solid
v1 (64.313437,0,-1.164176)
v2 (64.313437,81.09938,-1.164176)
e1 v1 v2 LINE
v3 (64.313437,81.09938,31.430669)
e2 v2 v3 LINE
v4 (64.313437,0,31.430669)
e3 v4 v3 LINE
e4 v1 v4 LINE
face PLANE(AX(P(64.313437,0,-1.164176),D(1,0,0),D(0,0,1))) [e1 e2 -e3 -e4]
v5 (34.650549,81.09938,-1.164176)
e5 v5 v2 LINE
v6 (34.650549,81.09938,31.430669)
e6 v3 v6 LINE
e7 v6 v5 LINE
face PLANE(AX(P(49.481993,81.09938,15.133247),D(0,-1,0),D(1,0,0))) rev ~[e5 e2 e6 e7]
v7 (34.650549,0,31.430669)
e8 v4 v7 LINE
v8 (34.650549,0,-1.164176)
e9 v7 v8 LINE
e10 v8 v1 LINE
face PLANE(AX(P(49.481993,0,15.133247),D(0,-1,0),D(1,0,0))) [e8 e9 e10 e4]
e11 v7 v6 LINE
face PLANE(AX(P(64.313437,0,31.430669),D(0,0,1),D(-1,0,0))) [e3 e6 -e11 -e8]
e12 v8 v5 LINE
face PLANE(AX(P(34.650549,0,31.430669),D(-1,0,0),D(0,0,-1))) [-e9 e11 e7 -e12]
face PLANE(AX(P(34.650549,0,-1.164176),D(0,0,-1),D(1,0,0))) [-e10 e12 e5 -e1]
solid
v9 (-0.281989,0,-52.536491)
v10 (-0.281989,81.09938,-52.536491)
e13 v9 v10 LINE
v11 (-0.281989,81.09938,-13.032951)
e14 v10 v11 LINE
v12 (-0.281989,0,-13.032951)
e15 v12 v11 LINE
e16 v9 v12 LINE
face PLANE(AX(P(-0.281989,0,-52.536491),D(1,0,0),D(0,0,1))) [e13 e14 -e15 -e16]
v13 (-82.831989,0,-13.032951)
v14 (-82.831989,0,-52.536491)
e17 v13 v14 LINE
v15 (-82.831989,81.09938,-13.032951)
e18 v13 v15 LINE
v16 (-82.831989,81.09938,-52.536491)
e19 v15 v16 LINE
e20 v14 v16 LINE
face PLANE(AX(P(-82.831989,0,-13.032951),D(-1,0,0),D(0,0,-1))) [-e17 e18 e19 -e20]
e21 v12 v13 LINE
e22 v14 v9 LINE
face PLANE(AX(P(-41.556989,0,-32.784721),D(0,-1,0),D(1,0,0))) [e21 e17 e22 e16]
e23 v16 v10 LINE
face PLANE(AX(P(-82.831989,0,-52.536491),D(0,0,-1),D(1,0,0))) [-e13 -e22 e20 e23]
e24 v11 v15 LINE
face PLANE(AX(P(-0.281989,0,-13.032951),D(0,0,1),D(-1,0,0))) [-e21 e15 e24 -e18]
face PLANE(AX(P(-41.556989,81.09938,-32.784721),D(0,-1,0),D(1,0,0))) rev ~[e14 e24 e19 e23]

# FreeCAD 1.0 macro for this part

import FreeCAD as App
import Part
import Sketcher
from FreeCAD import Vector
Q = App.Units.Quantity


def add_polygon(sketch, points):
    """Adds a closed chain of lines whose ends are joined by coincident constraints."""
    first, n = sketch.GeometryCount, len(points)
    for a, b in zip(points, points[1:] + points[:1]):
        sketch.addGeometry(Part.LineSegment(App.Vector(*a, 0), App.Vector(*b, 0)), False)
    for i in range(n):
        sketch.addConstraint(Sketcher.Constraint("Coincident", first + i, 2, first + (i + 1) % n, 1))

doc = App.newDocument("Part")
body = doc.addObject("PartDesign::Body", "Body")
body.AllowCompound = True

# Sketch on XZ plane
sketch1 = body.newObject("Sketcher::SketchObject", "Sketch")
sketch1.AttachmentSupport = (doc.getObject("XZ_Plane"), [""])
sketch1.MapMode = "FlatFace"
add_polygon(sketch1, [(-82.831989, -52.536491), (-0.281989, -52.536491), (-0.281989, -13.032951), (-82.831989, -13.032951)])  # lines 0-3
add_polygon(sketch1, [(34.650549, 31.430669), (34.650549, -1.164176), (64.313437, -1.164176), (64.313437, 31.430669)])  # lines 4-7
sketch1.addConstraint([
    Sketcher.Constraint("Horizontal", 0),
    Sketcher.Constraint("Vertical", 1),
    Sketcher.Constraint("Horizontal", 2),
    Sketcher.Constraint("Vertical", 3),
    Sketcher.Constraint("Vertical", 4),
    Sketcher.Constraint("Horizontal", 5),
    Sketcher.Constraint("Vertical", 6),
    Sketcher.Constraint("Horizontal", 7),
    Sketcher.Constraint("DistanceX", 0, 1, 0, 2, Q("3.25 in")),
    Sketcher.Constraint("DistanceY", 1, 1, 1, 2, 39.50354),
    Sketcher.Constraint("DistanceX", 5, 1, 5, 2, 29.662888),
    Sketcher.Constraint("DistanceY", 4, 2, 4, 1, 32.594845),
    Sketcher.Constraint("DistanceX", 0, 2, -1, 1, 0.281989),
    Sketcher.Constraint("DistanceY", 0, 2, -1, 1, 52.536491),
    Sketcher.Constraint("DistanceX", -1, 1, 4, 2, 34.650549),
    Sketcher.Constraint("DistanceY", -1, 1, 6, 2, 31.430669),
])
pad1 = body.newObject("PartDesign::Pad", "Pad")
pad1.Profile = sketch1
pad1.Length = 81.09938
pad1.Reversed = True

doc.recompute()
